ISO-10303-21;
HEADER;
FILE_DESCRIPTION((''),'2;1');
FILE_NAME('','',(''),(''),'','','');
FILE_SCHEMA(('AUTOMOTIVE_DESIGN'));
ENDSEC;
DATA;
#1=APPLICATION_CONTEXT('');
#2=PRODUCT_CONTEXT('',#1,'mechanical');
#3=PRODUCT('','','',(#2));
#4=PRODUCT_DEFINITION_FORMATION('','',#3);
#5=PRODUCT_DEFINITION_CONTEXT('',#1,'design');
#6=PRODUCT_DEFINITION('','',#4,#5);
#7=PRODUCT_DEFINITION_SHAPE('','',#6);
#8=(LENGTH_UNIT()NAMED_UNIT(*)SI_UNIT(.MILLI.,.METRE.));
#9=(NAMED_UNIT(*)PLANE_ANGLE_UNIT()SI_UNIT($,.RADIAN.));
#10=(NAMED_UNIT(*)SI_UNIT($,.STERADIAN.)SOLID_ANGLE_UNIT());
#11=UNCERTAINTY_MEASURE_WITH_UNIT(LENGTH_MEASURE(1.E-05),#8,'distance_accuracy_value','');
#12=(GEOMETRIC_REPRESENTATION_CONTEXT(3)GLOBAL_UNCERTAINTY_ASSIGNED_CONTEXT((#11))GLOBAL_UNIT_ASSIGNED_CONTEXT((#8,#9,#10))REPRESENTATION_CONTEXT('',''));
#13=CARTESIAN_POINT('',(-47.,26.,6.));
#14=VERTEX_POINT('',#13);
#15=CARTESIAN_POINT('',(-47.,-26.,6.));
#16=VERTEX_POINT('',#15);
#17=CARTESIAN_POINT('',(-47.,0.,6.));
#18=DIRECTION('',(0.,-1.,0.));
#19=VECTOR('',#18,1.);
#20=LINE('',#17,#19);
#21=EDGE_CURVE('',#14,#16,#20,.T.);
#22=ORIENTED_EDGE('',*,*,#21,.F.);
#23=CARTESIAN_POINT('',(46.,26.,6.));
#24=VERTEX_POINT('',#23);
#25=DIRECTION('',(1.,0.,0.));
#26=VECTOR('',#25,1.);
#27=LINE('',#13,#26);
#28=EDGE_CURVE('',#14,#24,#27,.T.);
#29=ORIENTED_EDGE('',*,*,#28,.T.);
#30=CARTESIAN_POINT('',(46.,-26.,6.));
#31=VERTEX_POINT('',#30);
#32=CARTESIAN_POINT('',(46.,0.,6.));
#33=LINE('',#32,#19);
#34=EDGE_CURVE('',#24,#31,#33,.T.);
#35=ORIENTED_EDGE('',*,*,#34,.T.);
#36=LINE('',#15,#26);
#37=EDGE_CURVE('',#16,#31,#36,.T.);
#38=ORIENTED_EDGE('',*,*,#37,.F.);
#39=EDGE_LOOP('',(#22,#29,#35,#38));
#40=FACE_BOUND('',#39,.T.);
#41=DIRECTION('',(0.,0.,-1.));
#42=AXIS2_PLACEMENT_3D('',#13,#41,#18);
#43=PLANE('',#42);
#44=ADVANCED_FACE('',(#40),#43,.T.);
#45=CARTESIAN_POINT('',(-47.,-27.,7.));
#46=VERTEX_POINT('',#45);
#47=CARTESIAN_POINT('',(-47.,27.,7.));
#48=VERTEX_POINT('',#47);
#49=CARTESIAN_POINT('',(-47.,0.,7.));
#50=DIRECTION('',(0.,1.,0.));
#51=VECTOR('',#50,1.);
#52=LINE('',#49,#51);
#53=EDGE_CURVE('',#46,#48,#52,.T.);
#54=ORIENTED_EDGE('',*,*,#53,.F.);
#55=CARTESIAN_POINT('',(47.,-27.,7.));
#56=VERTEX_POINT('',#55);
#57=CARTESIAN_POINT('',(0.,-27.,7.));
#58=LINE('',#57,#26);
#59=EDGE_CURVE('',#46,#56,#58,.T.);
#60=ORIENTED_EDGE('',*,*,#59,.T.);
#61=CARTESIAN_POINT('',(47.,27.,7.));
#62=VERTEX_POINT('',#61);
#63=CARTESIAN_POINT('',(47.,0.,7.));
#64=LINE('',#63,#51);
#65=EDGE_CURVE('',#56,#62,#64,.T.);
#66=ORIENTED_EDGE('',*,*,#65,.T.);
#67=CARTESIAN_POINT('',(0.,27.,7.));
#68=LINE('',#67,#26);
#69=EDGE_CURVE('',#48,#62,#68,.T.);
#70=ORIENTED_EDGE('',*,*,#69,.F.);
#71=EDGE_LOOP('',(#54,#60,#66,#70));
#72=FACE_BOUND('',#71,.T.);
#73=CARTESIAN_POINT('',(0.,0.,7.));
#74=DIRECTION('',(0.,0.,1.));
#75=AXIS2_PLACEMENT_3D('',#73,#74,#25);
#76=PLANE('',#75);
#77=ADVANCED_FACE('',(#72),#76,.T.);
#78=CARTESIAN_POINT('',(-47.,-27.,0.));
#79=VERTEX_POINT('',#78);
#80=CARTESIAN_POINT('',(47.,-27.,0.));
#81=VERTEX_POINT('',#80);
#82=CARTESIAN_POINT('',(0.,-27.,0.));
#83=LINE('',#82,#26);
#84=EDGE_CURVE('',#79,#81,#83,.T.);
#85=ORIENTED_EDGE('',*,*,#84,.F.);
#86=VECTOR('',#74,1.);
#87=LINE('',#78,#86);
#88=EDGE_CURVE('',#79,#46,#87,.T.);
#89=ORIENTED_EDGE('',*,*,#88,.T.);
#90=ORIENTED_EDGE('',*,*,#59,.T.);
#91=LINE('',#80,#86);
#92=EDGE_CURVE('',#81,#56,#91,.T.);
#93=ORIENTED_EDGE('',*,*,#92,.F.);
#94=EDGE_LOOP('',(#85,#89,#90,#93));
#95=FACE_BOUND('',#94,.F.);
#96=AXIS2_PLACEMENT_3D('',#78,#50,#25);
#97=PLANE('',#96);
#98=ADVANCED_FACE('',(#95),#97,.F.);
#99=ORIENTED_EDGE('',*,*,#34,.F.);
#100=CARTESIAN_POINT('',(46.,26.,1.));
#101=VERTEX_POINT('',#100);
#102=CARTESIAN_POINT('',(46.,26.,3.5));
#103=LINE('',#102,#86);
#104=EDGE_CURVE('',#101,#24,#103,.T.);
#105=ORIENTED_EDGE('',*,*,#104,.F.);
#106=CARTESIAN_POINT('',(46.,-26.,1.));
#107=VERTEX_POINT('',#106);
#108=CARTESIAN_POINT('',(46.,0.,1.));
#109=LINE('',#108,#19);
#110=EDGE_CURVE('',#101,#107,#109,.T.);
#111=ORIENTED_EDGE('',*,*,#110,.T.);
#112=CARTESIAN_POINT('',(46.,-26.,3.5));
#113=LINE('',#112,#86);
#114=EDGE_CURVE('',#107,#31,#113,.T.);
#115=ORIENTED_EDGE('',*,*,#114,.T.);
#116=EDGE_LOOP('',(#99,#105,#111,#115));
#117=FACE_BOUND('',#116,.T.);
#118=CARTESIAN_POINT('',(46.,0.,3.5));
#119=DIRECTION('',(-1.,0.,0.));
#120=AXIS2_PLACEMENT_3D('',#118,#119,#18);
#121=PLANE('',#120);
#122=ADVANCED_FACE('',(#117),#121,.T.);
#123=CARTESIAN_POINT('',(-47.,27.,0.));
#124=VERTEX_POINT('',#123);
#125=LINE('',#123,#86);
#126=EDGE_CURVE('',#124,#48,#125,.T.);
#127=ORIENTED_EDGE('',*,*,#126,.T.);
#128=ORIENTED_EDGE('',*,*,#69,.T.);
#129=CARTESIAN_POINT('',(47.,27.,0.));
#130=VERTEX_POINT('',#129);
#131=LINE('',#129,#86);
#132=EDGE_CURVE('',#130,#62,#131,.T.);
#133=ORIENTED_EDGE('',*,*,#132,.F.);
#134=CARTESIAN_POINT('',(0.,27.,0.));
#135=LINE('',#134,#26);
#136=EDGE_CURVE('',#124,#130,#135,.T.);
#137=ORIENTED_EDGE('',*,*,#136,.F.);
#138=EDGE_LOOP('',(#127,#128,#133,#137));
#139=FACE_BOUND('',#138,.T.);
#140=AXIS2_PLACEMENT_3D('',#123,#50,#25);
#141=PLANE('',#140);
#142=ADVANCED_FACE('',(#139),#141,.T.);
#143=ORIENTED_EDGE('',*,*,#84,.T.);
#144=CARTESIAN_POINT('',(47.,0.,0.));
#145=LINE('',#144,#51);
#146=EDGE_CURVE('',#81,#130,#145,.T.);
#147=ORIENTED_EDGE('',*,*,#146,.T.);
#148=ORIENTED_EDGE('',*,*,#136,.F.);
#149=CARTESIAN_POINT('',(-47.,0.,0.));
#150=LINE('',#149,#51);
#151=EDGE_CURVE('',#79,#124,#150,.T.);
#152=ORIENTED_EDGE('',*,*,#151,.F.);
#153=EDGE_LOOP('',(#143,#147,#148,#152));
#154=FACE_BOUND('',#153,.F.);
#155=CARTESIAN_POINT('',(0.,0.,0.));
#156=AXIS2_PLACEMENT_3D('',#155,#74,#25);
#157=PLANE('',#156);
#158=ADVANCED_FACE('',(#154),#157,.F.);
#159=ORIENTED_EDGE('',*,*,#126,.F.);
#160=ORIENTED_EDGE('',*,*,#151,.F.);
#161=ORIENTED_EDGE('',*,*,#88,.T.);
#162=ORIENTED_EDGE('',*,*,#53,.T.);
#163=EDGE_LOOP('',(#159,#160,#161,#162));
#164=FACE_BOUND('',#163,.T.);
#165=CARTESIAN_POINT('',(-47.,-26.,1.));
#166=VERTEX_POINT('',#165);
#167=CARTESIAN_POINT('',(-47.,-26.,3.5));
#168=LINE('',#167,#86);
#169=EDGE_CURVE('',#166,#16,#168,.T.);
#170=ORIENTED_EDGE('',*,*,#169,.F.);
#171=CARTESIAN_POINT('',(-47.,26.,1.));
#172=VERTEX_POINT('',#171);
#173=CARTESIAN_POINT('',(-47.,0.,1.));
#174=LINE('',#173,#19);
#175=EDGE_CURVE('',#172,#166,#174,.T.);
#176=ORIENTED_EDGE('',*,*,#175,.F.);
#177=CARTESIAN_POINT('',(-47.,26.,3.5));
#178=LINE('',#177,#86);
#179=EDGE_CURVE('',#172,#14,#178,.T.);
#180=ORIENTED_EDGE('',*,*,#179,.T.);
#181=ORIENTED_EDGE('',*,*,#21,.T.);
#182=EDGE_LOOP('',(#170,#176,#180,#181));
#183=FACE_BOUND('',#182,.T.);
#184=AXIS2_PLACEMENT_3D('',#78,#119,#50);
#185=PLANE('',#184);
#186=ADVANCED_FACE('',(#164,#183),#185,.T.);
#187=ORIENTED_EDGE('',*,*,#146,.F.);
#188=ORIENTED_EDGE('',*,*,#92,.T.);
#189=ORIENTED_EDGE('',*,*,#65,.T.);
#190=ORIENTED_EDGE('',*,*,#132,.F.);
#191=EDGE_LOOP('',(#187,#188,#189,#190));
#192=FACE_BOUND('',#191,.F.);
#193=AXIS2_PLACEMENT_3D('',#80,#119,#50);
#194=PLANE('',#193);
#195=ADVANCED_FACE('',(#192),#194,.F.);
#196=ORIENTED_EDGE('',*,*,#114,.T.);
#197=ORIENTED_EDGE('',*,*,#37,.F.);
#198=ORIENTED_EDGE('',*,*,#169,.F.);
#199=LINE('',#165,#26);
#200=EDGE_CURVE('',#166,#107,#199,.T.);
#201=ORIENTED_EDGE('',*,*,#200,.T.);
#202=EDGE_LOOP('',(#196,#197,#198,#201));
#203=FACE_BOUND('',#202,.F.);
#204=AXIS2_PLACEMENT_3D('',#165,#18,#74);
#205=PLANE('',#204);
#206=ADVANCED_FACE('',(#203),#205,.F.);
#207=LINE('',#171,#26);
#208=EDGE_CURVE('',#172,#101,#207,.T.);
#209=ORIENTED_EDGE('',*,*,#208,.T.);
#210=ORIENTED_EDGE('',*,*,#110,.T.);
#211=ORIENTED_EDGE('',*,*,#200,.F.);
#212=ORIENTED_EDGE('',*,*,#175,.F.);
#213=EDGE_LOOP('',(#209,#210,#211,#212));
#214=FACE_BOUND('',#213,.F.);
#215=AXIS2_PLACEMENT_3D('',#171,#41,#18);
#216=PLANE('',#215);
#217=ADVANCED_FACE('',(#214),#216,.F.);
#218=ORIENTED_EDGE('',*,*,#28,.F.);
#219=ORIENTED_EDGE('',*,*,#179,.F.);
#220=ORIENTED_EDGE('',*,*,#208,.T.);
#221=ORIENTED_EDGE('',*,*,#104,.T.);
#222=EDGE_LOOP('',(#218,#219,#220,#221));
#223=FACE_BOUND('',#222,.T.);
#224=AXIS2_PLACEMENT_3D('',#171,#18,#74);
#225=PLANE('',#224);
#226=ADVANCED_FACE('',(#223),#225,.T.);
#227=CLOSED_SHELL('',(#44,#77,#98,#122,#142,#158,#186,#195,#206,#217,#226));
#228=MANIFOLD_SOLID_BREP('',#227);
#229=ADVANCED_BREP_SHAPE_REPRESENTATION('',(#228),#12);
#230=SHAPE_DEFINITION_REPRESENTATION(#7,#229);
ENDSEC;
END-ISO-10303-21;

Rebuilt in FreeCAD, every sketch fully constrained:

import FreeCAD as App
import Part
import Sketcher
from FreeCAD import Vector


def add_polygon(sketch, points):
    """Adds a closed chain of lines whose ends are joined by coincident constraints."""
    first, n = sketch.GeometryCount, len(points)
    for a, b in zip(points, points[1:] + points[:1]):
        sketch.addGeometry(Part.LineSegment(App.Vector(*a, 0), App.Vector(*b, 0)), False)
    for i in range(n):
        sketch.addConstraint(Sketcher.Constraint("Coincident", first + i, 2, first + (i + 1) % n, 1))

doc = App.newDocument("Part")
body = doc.addObject("PartDesign::Body", "Body")

# Sketch on XY plane
sketch1 = body.newObject("Sketcher::SketchObject", "Sketch")
sketch1.AttachmentSupport = (doc.getObject("XY_Plane"), [""])
sketch1.MapMode = "FlatFace"
add_polygon(sketch1, [(-47, 27), (-47, -27), (47, -27), (47, 27)])  # lines 0-3
sketch1.addConstraint([
    Sketcher.Constraint("Vertical", 0),
    Sketcher.Constraint("Horizontal", 1),
    Sketcher.Constraint("Vertical", 2),
    Sketcher.Constraint("Horizontal", 3),
    Sketcher.Constraint("Symmetric", 0, 2, 2, 2, -1, 1),
    Sketcher.Constraint("DistanceX", 1, 1, 1, 2, 94.0),
    Sketcher.Constraint("DistanceY", 0, 2, 0, 1, 54.0),
])
pad1 = body.newObject("PartDesign::Pad", "Pad")
pad1.Profile = sketch1
pad1.Length = 7

# Sketch on YZ plane
sketch2 = body.newObject("Sketcher::SketchObject", "Sketch001")
sketch2.AttachmentSupport = (doc.getObject("YZ_Plane"), [""])
sketch2.MapMode = "FlatFace"
sketch2.AttachmentOffset = App.Placement(Vector(0, 0, -47), App.Rotation())
add_polygon(sketch2, [(26, 6), (26, 1), (-26, 1), (-26, 6)])  # lines 0-3
sketch2.addConstraint([
    Sketcher.Constraint("Vertical", 0),
    Sketcher.Constraint("Horizontal", 1),
    Sketcher.Constraint("Vertical", 2),
    Sketcher.Constraint("Horizontal", 3),
    Sketcher.Constraint("DistanceX", 1, 2, 1, 1, 52.0),
    Sketcher.Constraint("DistanceY", 0, 2, 0, 1, 5.0),
    Sketcher.Constraint("DistanceX", -1, 1, 0, 2, 26.0),
    Sketcher.Constraint("DistanceY", -1, 1, 0, 2, 1.0),
])
pocket1 = body.newObject("PartDesign::Pocket", "Pocket")
pocket1.Profile = sketch2
pocket1.Length = 93
pocket1.Reversed = True

doc.recompute()
